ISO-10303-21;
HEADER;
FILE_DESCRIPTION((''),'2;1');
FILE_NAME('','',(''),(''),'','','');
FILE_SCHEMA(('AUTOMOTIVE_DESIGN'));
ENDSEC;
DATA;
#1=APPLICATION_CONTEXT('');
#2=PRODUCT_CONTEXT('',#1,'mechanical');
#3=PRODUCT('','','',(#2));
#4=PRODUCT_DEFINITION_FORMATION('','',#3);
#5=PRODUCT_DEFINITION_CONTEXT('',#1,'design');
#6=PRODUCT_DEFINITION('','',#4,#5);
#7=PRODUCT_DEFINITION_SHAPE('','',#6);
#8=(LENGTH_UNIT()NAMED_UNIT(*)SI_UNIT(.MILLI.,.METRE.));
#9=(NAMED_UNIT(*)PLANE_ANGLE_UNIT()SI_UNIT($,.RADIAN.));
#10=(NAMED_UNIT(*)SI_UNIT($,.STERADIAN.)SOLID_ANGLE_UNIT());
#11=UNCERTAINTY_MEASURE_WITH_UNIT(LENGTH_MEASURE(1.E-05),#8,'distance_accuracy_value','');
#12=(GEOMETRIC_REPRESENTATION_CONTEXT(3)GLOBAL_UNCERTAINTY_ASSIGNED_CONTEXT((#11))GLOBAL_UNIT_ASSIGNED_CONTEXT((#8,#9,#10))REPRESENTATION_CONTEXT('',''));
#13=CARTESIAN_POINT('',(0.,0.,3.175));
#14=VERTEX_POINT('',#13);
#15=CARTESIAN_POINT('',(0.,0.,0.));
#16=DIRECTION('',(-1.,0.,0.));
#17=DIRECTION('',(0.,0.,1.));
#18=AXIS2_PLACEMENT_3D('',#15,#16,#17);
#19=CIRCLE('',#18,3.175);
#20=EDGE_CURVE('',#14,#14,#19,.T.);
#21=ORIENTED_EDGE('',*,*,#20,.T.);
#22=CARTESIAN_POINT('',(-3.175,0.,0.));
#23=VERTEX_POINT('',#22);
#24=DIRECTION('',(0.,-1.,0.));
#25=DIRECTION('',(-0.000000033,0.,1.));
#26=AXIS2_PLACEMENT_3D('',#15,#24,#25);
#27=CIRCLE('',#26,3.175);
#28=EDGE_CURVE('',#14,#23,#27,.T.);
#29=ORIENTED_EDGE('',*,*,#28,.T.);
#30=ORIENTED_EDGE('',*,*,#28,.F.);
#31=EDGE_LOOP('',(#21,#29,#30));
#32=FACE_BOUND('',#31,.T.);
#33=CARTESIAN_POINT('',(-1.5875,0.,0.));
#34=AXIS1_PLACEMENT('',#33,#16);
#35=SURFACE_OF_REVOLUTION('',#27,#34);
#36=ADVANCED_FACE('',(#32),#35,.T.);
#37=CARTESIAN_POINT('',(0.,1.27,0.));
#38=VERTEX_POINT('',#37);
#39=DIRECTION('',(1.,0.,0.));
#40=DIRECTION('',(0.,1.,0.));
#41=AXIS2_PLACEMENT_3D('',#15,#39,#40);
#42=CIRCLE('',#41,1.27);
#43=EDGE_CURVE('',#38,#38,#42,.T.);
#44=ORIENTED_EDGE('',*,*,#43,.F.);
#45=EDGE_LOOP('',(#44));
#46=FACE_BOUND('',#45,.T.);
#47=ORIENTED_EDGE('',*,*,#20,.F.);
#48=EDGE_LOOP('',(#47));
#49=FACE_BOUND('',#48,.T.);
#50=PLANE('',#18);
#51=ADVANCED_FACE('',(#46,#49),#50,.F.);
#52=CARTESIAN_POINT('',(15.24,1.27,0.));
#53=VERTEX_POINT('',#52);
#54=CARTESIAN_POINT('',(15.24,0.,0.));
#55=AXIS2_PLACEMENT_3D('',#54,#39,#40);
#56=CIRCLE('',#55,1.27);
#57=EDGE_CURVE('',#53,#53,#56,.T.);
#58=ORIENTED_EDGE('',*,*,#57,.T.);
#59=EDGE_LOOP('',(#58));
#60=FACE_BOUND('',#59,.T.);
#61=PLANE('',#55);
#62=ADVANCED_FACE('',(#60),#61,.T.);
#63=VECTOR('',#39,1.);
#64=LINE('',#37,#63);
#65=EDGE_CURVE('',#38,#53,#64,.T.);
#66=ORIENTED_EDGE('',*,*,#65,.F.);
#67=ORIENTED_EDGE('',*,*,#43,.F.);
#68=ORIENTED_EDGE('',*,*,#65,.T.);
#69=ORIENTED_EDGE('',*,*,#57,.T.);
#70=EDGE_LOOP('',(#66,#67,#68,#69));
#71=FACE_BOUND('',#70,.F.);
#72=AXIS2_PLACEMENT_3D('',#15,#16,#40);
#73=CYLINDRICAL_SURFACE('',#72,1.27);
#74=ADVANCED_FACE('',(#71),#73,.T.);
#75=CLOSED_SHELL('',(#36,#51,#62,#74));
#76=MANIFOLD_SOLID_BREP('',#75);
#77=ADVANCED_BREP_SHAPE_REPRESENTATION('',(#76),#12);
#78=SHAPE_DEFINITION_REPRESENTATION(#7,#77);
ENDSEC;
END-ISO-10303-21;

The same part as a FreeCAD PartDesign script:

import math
import FreeCAD as App
import Part
import Sketcher

V = App.Vector
Q = App.Units.Quantity

doc = App.newDocument("Part")
body = doc.addObject("PartDesign::Body", "Body")

# Sketch on YZ plane
sketch1 = body.newObject("Sketcher::SketchObject", "Sketch")
sketch1.AttachmentSupport = (doc.getObject("YZ_Plane"), [""])
sketch1.MapMode = "FlatFace"
sketch1.addGeometry(Part.Circle(V(0, 0, 0), V(0, 0, 1), 1.3), False)
sketch1.addConstraint(Sketcher.Constraint("Coincident", 0, 3, -1, 1))
sketch1.addConstraint(Sketcher.Constraint("Diameter", 0, Q("0.1 in")))
pad1 = body.newObject("PartDesign::Pad", "Pad")
pad1.Profile = sketch1
pad1.Length = Q("0.6 in")

# Sketch on XZ plane
sketch2 = body.newObject("Sketcher::SketchObject", "Sketch001")
sketch2.AttachmentSupport = (doc.getObject("XZ_Plane"), [""])
sketch2.MapMode = "FlatFace"
sketch2.addGeometry(Part.LineSegment(V(-3.2, 0, 0), V(0, 0, 0)), False)
sketch2.addGeometry(Part.LineSegment(V(0, 0, 0), V(0, 3.2, 0)), False)
sketch2.addGeometry(Part.ArcOfCircle(Part.Circle(V(0, 0, 0), V(0, 0, 1), 3.2), math.radians(90), math.radians(180)), False)
sketch2.addConstraint(Sketcher.Constraint("Coincident", 0, 2, 1, 1))
sketch2.addConstraint(Sketcher.Constraint("Coincident", 1, 2, 2, 1))
sketch2.addConstraint(Sketcher.Constraint("Coincident", 2, 2, 0, 1))
sketch2.addConstraint(Sketcher.Constraint("Horizontal", 0))
sketch2.addConstraint(Sketcher.Constraint("Vertical", 1))
sketch2.addConstraint(Sketcher.Constraint("Coincident", 2, 3, -1, 1))
sketch2.addConstraint(Sketcher.Constraint("Coincident", 0, 2, -1, 1))
sketch2.addConstraint(Sketcher.Constraint("Radius", 2, Q("0.125 in")))
revolution = body.newObject("PartDesign::Revolution", "Revolution")
revolution.Profile = sketch2
revolution.ReferenceAxis = (sketch2, ["H_Axis"])
revolution.Angle = 360

doc.recompute()
